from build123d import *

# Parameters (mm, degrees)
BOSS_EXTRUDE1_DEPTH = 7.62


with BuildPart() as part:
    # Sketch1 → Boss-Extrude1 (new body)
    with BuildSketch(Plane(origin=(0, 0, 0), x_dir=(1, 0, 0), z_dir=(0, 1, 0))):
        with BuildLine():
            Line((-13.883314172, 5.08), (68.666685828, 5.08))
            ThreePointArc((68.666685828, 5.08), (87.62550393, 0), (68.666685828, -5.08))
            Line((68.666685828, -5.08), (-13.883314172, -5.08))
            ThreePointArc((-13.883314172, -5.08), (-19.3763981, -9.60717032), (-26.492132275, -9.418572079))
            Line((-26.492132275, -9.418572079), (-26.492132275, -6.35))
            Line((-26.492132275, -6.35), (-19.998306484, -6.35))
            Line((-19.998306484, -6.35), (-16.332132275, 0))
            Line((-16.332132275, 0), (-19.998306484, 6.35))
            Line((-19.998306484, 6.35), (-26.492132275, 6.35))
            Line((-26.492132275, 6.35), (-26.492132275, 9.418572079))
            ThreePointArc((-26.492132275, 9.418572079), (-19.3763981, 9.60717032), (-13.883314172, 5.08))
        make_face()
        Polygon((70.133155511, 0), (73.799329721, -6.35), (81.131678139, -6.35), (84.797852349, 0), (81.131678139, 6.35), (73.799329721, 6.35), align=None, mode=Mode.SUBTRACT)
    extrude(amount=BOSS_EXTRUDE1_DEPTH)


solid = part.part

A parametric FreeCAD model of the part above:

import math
import FreeCAD as App
import Part
import Sketcher

V = App.Vector
Q = App.Units.Quantity


def add_polygon(sketch, points):
    """Adds a closed chain of lines whose ends are joined by coincident constraints."""
    first, n = sketch.GeometryCount, len(points)
    for a, b in zip(points, points[1:] + points[:1]):
        sketch.addGeometry(Part.LineSegment(App.Vector(*a, 0), App.Vector(*b, 0)), False)
    for i in range(n):
        sketch.addConstraint(Sketcher.Constraint("Coincident", first + i, 2, first + (i + 1) % n, 1))

doc = App.newDocument("Part")
body = doc.addObject("PartDesign::Body", "Body")

# Sketch on XZ plane
sketch1 = body.newObject("Sketcher::SketchObject", "Sketch")
sketch1.AttachmentSupport = (doc.getObject("XZ_Plane"), [""])
sketch1.MapMode = "FlatFace"
sketch1.addGeometry(Part.LineSegment(V(68.7, -5.1, 0), V(-13.9, -5.1, 0)), False)  # 0
sketch1.addGeometry(Part.ArcOfCircle(Part.Circle(V(-22.7, 0, 0), V(0, 0, 1), 10.2), math.radians(-112), math.radians(-30)), False)  # 1
sketch1.addGeometry(Part.LineSegment(V(-26.5, -9.4, 0), V(-26.5, -6.3, 0)), False)  # 2
sketch1.addGeometry(Part.LineSegment(V(-26.5, -6.3, 0), V(-20, -6.3, 0)), False)  # 3
sketch1.addGeometry(Part.LineSegment(V(-20, -6.3, 0), V(-16.3, 0, 0)), False)  # 4
sketch1.addGeometry(Part.LineSegment(V(-16.3, 0, 0), V(-20, 6.3, 0)), False)  # 5
sketch1.addGeometry(Part.LineSegment(V(-20, 6.3, 0), V(-26.5, 6.3, 0)), False)  # 6
sketch1.addGeometry(Part.LineSegment(V(-26.5, 6.3, 0), V(-26.5, 9.4, 0)), False)  # 7
sketch1.addGeometry(Part.ArcOfCircle(Part.Circle(V(-22.7, 0, 0), V(0, 0, 1), 10.2), math.radians(30), math.radians(112)), False)  # 8
sketch1.addGeometry(Part.LineSegment(V(-13.9, 5.1, 0), V(68.7, 5.1, 0)), False)  # 9
sketch1.addGeometry(Part.ArcOfCircle(Part.Circle(V(77.5, 0, 0), V(0, 0, 1), 10.2), math.radians(-150), math.radians(150)), False)  # 10
add_polygon(sketch1, [(70.1, 0), (73.8, -6.3), (81.1, -6.3), (84.8, 0), (81.1, 6.3), (73.8, 6.3)])  # lines 11-16
sketch1.addConstraint([
    Sketcher.Constraint("Coincident", 0, 2, 1, 2),
    Sketcher.Constraint("Coincident", 1, 1, 2, 1),
    Sketcher.Constraint("Coincident", 2, 2, 3, 1),
    Sketcher.Constraint("Coincident", 3, 2, 4, 1),
    Sketcher.Constraint("Coincident", 4, 2, 5, 1),
    Sketcher.Constraint("Coincident", 5, 2, 6, 1),
    Sketcher.Constraint("Coincident", 6, 2, 7, 1),
    Sketcher.Constraint("Coincident", 7, 2, 8, 2),
    Sketcher.Constraint("Coincident", 8, 1, 9, 1),
    Sketcher.Constraint("Coincident", 9, 2, 10, 2),
    Sketcher.Constraint("Coincident", 10, 1, 0, 1),
    Sketcher.Constraint("Horizontal", 0),
    Sketcher.Constraint("Vertical", 2),
    Sketcher.Constraint("Horizontal", 3),
    Sketcher.Constraint("Horizontal", 6),
    Sketcher.Constraint("Vertical", 7),
    Sketcher.Constraint("Horizontal", 9),
    Sketcher.Constraint("Horizontal", 12),
    Sketcher.Constraint("Horizontal", 15),
    Sketcher.Constraint("Coincident", 8, 3, 1, 3),
    Sketcher.Constraint("Equal", 1, 8),
    Sketcher.Constraint("Equal", 8, 10),
    Sketcher.Constraint("Symmetric", 3, 2, 5, 2, -1),
    Sketcher.Constraint("Symmetric", 1, 1, 7, 2, -1),
    Sketcher.Constraint("Symmetric", 9, 2, 10, 1, -1),
    Sketcher.Constraint("Symmetric", 12, 2, 14, 2, -1),
    Sketcher.Constraint("PointOnObject", 4, 2, -1),
    Sketcher.Constraint("PointOnObject", 13, 2, -1),
    Sketcher.Constraint("PointOnObject", 16, 2, -1),
    Sketcher.Constraint("Parallel", 5, 11),
    Sketcher.Constraint("Parallel", 4, 13),
    Sketcher.Constraint("Parallel", 13, 16),
    Sketcher.Constraint("Horizontal", 3, 2, 11, 2),
    Sketcher.Constraint("Radius", 1, Q("0.4 in")),
    Sketcher.Constraint("Angle", 4, Q("60 deg")),
    Sketcher.Constraint("DistanceX", 0, 2, 0, 1, Q("3.25 in")),
    Sketcher.Constraint("DistanceY", 0, 2, -1, 1, Q("0.2 in")),
    Sketcher.Constraint("DistanceX", 2, 2, 4, 2, Q("0.4 in")),
    Sketcher.Constraint("DistanceY", 3, 2, 5, 2, Q("0.5 in")),
    Sketcher.Constraint("DistanceX", 1, 1, 8, 3, Q("0.15 in")),
    Sketcher.Constraint("DistanceX", 12, 1, 12, 2, Q("7.332348 mm")),
    Sketcher.Constraint("DistanceX", -1, 1, 11, 2, Q("73.79933 mm")),
    Sketcher.Constraint("DistanceX", 10, 3, 13, 2, Q("7.332348 mm")),
])
pad1 = body.newObject("PartDesign::Pad", "Pad")
pad1.Profile = sketch1
pad1.Length = Q("0.3 in")
pad1.Reversed = True

doc.recompute()
